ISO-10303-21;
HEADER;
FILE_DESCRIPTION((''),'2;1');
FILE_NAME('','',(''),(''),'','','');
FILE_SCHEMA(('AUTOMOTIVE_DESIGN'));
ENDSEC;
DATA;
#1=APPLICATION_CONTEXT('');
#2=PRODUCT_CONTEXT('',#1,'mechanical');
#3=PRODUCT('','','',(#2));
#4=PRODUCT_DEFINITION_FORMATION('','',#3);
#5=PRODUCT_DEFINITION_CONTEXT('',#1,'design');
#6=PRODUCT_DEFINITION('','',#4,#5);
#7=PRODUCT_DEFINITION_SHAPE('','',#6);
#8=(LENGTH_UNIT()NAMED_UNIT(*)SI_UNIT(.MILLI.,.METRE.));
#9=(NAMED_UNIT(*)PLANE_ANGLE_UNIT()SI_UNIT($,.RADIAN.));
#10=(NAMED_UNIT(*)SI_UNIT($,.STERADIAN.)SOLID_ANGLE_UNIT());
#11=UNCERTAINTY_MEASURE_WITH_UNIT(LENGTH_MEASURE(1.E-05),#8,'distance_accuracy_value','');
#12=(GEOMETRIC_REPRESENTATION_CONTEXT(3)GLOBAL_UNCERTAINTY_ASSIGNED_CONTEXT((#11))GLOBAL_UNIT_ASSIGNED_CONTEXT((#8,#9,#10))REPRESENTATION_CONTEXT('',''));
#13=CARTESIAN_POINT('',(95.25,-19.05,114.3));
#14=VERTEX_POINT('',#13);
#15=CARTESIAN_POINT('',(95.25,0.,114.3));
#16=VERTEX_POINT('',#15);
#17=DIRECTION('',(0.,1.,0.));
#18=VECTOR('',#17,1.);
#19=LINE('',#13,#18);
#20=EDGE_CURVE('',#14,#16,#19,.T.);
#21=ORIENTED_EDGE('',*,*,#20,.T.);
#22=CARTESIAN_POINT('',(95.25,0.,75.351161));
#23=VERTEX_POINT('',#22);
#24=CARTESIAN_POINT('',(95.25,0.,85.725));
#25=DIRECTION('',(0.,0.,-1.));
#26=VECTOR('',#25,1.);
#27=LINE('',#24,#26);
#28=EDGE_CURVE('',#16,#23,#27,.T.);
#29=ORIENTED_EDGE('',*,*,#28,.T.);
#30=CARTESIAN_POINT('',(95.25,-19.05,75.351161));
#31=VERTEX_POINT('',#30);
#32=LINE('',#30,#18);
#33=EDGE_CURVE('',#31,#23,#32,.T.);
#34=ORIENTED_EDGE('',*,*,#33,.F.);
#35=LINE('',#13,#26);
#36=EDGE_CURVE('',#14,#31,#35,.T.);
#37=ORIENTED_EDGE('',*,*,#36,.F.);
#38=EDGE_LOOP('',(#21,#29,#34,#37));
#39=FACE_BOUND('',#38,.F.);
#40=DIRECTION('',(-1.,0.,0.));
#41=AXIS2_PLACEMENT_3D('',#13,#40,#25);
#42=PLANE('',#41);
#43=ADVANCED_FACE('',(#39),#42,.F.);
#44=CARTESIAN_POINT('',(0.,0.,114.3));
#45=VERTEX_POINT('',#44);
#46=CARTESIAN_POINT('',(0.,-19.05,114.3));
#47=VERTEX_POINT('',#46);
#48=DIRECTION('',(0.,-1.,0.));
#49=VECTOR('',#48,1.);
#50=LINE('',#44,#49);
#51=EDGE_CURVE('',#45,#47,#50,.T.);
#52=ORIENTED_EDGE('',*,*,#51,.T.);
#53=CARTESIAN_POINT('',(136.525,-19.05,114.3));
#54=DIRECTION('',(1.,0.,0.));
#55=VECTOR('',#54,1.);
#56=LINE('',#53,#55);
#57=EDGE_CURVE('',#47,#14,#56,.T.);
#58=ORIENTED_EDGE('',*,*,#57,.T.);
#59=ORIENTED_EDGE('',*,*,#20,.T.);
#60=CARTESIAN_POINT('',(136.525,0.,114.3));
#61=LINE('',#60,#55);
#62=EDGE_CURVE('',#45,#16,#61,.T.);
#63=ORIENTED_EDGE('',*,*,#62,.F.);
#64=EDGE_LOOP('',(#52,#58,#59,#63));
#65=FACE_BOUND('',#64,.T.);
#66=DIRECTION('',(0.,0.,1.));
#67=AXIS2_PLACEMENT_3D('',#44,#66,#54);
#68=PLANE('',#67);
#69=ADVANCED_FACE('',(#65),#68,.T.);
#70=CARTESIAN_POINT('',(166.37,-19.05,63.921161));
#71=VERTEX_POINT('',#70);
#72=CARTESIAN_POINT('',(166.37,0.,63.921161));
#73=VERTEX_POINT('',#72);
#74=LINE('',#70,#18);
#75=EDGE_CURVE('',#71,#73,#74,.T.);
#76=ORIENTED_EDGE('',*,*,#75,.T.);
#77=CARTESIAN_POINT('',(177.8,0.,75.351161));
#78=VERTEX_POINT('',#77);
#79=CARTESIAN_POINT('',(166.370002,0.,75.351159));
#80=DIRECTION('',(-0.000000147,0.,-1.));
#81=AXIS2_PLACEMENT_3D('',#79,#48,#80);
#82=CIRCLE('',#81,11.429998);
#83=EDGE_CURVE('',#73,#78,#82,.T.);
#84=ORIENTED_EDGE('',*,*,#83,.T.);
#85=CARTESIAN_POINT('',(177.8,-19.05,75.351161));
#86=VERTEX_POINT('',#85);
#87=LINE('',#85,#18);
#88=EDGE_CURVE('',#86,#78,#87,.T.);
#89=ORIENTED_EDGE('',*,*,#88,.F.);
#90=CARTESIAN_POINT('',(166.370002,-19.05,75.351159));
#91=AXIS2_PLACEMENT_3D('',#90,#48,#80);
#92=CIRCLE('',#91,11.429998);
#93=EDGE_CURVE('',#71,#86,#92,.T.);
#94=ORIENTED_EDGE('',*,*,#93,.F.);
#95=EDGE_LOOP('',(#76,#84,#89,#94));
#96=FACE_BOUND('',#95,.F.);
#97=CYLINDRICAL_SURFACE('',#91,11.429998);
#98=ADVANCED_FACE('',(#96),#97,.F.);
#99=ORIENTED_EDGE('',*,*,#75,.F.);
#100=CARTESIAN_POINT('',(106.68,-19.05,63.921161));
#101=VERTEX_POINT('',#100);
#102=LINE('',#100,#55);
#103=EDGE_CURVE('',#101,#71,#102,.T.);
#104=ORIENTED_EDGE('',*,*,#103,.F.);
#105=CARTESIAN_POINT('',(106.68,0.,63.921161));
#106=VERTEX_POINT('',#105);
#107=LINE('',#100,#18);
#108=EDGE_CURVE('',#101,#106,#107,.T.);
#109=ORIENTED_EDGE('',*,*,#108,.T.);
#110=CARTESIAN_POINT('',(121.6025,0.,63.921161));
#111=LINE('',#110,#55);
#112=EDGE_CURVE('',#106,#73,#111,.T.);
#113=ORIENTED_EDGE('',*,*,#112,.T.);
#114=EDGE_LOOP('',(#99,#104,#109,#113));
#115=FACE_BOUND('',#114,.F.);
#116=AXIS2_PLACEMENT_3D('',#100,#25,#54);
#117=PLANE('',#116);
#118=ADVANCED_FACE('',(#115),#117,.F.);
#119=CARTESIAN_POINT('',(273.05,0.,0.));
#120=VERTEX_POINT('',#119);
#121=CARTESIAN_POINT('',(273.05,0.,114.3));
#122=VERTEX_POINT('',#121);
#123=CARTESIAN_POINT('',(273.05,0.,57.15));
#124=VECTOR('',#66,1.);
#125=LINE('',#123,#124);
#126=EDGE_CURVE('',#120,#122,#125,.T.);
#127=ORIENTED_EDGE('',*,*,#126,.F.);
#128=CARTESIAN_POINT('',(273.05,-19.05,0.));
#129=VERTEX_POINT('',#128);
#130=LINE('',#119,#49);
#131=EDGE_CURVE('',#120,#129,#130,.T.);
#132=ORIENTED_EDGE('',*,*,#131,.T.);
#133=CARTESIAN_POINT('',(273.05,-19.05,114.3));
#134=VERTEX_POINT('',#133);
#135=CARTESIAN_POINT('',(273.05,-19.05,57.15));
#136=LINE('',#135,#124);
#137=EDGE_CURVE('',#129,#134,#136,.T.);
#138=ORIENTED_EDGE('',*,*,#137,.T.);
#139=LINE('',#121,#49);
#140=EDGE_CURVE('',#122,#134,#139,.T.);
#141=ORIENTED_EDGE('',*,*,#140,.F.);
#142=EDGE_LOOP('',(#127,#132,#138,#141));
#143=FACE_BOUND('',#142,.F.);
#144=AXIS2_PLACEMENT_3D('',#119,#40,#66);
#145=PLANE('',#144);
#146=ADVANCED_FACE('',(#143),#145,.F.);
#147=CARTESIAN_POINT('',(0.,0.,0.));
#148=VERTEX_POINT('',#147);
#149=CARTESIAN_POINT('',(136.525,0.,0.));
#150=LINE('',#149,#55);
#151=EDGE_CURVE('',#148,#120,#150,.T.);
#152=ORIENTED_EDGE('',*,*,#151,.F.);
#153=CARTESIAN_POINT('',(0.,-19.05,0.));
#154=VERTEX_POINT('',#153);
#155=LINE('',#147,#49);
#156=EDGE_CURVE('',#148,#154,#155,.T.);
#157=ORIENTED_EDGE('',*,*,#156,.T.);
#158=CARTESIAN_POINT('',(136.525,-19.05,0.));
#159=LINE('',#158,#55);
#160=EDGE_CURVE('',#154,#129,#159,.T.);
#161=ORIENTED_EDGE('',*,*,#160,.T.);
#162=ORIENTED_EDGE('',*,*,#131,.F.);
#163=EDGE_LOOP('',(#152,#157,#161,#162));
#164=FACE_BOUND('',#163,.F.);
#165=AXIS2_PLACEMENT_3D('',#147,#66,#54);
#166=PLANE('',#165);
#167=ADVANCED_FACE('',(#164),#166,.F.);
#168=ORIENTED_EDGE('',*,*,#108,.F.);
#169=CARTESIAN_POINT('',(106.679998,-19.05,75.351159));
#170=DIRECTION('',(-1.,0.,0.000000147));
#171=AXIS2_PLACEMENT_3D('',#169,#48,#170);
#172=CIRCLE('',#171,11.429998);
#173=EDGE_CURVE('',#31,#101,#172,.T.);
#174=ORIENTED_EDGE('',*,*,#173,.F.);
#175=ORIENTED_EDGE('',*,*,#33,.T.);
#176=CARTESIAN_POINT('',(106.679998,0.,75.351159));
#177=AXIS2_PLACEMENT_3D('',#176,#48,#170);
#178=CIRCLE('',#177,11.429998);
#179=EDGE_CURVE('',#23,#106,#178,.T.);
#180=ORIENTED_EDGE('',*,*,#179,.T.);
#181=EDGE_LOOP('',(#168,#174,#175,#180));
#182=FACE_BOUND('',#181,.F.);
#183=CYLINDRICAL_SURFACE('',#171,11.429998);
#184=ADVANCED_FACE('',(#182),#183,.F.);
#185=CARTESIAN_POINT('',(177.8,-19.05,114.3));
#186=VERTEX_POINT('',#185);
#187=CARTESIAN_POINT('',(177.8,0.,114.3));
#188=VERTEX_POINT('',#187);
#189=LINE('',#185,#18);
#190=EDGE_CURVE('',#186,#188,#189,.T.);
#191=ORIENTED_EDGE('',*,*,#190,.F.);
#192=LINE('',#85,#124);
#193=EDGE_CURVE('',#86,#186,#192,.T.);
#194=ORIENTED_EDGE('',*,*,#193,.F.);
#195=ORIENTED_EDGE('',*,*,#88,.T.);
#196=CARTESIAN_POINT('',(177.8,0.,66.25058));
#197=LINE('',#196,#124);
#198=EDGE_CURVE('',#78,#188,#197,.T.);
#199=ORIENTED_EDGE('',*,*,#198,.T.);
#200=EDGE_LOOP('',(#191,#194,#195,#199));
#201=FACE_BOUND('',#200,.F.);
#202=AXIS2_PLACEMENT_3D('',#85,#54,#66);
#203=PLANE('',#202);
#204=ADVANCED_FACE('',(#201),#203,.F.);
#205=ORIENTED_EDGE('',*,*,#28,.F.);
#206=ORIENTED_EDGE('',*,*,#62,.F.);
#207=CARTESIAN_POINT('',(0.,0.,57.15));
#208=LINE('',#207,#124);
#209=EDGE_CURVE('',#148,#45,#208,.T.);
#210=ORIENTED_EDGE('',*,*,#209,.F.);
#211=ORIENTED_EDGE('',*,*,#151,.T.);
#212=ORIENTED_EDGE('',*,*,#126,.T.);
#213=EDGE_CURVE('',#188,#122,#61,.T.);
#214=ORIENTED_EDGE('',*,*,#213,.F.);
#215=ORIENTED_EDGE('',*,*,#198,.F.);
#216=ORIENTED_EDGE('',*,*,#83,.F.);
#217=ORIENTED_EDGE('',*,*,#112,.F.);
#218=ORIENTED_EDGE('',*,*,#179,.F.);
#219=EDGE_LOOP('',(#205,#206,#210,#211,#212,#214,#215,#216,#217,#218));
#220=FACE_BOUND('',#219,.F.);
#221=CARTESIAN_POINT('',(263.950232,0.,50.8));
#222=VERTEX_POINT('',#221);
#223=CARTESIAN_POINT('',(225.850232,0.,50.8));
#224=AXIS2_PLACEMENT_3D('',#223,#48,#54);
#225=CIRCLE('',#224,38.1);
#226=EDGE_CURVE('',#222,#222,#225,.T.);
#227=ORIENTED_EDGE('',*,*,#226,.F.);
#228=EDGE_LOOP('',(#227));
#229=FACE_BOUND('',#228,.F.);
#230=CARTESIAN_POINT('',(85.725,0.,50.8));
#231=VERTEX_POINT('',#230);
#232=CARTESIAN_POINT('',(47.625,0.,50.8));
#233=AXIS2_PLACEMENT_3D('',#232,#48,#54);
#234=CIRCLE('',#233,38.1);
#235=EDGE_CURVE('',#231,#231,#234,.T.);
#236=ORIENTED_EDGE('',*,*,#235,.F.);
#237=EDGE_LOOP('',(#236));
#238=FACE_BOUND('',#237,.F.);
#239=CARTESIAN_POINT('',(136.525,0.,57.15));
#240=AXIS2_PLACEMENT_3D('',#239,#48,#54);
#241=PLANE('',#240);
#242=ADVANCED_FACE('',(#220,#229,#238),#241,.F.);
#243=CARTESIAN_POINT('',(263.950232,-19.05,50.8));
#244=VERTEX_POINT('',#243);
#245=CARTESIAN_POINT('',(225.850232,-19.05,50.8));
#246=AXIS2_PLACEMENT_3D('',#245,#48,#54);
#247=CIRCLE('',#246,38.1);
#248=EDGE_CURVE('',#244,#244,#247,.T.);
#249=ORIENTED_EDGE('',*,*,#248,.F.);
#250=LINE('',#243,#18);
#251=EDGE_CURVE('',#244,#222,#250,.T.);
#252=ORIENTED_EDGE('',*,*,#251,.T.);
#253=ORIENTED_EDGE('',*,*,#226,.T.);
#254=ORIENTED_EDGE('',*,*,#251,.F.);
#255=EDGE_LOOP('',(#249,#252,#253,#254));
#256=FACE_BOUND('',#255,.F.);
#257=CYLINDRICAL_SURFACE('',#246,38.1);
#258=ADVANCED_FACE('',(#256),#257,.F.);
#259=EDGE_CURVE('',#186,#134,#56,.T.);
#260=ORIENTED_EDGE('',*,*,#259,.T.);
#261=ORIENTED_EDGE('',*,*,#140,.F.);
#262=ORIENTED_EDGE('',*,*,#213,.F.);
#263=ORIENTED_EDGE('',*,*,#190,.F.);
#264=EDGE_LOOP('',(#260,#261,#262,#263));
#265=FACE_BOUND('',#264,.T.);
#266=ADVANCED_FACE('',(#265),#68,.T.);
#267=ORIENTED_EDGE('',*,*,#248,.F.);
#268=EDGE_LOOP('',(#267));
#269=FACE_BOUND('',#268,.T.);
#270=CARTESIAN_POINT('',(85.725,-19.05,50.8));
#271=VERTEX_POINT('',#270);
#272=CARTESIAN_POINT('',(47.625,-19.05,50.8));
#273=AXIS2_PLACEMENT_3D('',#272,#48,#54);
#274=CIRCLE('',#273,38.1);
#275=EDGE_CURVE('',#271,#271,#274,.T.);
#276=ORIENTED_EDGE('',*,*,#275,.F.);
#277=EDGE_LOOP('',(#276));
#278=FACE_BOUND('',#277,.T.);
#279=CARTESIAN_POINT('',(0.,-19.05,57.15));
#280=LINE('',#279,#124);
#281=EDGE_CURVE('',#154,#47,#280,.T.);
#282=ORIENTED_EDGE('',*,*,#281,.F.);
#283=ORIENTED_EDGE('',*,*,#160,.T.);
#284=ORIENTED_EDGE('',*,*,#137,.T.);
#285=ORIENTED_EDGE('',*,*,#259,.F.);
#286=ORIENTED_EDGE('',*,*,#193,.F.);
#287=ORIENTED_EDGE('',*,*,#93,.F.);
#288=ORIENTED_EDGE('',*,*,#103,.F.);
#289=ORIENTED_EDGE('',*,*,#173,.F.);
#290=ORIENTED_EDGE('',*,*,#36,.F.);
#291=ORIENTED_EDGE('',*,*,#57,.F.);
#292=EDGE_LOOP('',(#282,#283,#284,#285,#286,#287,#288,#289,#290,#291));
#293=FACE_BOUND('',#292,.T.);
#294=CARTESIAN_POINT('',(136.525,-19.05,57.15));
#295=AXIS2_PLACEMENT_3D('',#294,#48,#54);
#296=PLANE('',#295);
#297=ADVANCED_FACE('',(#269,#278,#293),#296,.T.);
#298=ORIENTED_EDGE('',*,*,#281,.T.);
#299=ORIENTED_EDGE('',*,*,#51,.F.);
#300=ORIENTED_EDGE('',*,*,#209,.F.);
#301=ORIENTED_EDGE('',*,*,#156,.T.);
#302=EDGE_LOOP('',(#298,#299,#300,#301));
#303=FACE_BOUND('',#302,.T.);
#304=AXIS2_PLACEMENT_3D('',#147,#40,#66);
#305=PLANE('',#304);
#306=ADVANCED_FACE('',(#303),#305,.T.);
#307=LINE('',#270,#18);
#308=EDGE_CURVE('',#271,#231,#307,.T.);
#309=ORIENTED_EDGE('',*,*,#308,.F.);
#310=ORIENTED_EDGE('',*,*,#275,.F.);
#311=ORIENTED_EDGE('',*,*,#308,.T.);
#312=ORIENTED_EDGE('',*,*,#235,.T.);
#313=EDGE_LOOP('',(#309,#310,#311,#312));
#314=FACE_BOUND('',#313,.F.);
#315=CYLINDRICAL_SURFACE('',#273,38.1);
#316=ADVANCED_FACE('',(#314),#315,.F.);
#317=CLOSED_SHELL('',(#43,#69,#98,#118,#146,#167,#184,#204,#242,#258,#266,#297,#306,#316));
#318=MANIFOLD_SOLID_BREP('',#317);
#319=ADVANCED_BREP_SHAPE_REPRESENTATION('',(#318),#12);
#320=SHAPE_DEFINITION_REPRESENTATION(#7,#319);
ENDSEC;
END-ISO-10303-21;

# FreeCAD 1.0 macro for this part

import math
import FreeCAD as App
import Part
import Sketcher
from FreeCAD import Vector
Q = App.Units.Quantity

doc = App.newDocument("Part")
body = doc.addObject("PartDesign::Body", "Body")

# Sketch on XZ plane
sketch1 = doc.addObject("Sketcher::SketchObject", "Sketch")
body.addObject(sketch1)
sketch1.AttachmentSupport = (doc.XZ_Plane, [""])
sketch1.MapMode = "FlatFace"
sketch1.addGeometry(Part.LineSegment(Vector(0, 114, 0), Vector(0, 0, 0)), False)
sketch1.addGeometry(Part.LineSegment(Vector(0, 0, 0), Vector(273, 0, 0)), False)
sketch1.addGeometry(Part.LineSegment(Vector(273, 0, 0), Vector(273, 114, 0)), False)
sketch1.addGeometry(Part.LineSegment(Vector(273, 114, 0), Vector(0, 114, 0)), False)
sketch1.addConstraint(Sketcher.Constraint("Coincident", 0, 2, 1, 1))
sketch1.addConstraint(Sketcher.Constraint("Coincident", 1, 2, 2, 1))
sketch1.addConstraint(Sketcher.Constraint("Coincident", 2, 2, 3, 1))
sketch1.addConstraint(Sketcher.Constraint("Coincident", 3, 2, 0, 1))
sketch1.addConstraint(Sketcher.Constraint("Vertical", 0))
sketch1.addConstraint(Sketcher.Constraint("Horizontal", 1))
sketch1.addConstraint(Sketcher.Constraint("Vertical", 2))
sketch1.addConstraint(Sketcher.Constraint("Horizontal", 3))
sketch1.addConstraint(Sketcher.Constraint("Coincident", 0, 2, -1, 1))
sketch1.addConstraint(Sketcher.Constraint("DistanceY", 0, 2, 0, 1, Q("4.5 in")))
sketch1.addConstraint(Sketcher.Constraint("DistanceX", 1, 1, 1, 2, Q("10.75 in")))
pad1 = doc.addObject("PartDesign::Pad", "Pad")
body.addObject(pad1)
pad1.Profile = sketch1
pad1.Length = Q("0.75 in")

# Sketch on XZ plane
sketch2 = doc.addObject("Sketcher::SketchObject", "Sketch001")
body.addObject(sketch2)
sketch2.AttachmentSupport = (doc.XZ_Plane, [""])
sketch2.MapMode = "FlatFace"
sketch2.AttachmentOffset = App.Placement(Vector(0, 0, 0.75 * 25.4), App.Rotation())
sketch2.addGeometry(Part.Circle(Vector(226, 51, 0), Vector(0, 0, 1), 38), False)
sketch2.addGeometry(Part.LineSegment(Vector(178, 114, 0), Vector(95, 114, 0)), False)
sketch2.addGeometry(Part.LineSegment(Vector(95, 114, 0), Vector(95, 75, 0)), False)
sketch2.addGeometry(Part.ArcOfCircle(Part.Circle(Vector(107, 75, 0), Vector(0, 0, 1), 11), math.radians(180), math.radians(270)), False)
sketch2.addGeometry(Part.LineSegment(Vector(107, 64, 0), Vector(166, 64, 0)), False)
sketch2.addGeometry(Part.ArcOfCircle(Part.Circle(Vector(166, 75, 0), Vector(0, 0, 1), 11), math.radians(-90), math.radians(0)), False)
sketch2.addGeometry(Part.LineSegment(Vector(178, 75, 0), Vector(178, 114, 0)), False)
sketch2.addGeometry(Part.Circle(Vector(48, 51, 0), Vector(0, 0, 1), 38), False)
sketch2.addConstraint(Sketcher.Constraint("Coincident", 1, 2, 2, 1))
sketch2.addConstraint(Sketcher.Constraint("Tangent", 2, 2, 3, 1))
sketch2.addConstraint(Sketcher.Constraint("Tangent", 3, 2, 4, 1))
sketch2.addConstraint(Sketcher.Constraint("Tangent", 4, 2, 5, 1))
sketch2.addConstraint(Sketcher.Constraint("Tangent", 5, 2, 6, 1))
sketch2.addConstraint(Sketcher.Constraint("Coincident", 6, 2, 1, 1))
sketch2.addConstraint(Sketcher.Constraint("Horizontal", 1))
sketch2.addConstraint(Sketcher.Constraint("Vertical", 2))
sketch2.addConstraint(Sketcher.Constraint("Horizontal", 4))
sketch2.addConstraint(Sketcher.Constraint("Vertical", 6))
sketch2.addConstraint(Sketcher.Constraint("Equal", 3, 5))
sketch2.addConstraint(Sketcher.Constraint("Equal", 0, 7))
sketch2.addConstraint(Sketcher.Constraint("Horizontal", 0, 3, 7, 3))
sketch2.addConstraint(Sketcher.Constraint("Diameter", 0, Q("3 in")))
sketch2.addConstraint(Sketcher.Constraint("Radius", 3, Q("0.4499999 in")))
sketch2.addConstraint(Sketcher.Constraint("DistanceY", -1, 1, 0, 3, Q("2 in")))
sketch2.addConstraint(Sketcher.Constraint("DistanceX", -1, 1, 5, 2, Q("7 in")))
sketch2.addConstraint(Sketcher.Constraint("DistanceX", 1, 2, 1, 1, Q("3.25 in")))
sketch2.addConstraint(Sketcher.Constraint("DistanceY", -1, 1, 1, 2, Q("4.5 in")))
sketch2.addConstraint(Sketcher.Constraint("DistanceX", -1, 1, 7, 3, Q("1.875 in")))
sketch2.addConstraint(Sketcher.Constraint("DistanceY", 2, 2, 2, 1, Q("38.948839 mm")))
sketch2.addConstraint(Sketcher.Constraint("DistanceX", -1, 1, 0, 3, Q("225.850232 mm")))
pocket1 = doc.addObject("PartDesign::Pocket", "Pocket")
body.addObject(pocket1)
pocket1.Profile = sketch2
pocket1.Length = Q("1 in")

doc.recompute()
